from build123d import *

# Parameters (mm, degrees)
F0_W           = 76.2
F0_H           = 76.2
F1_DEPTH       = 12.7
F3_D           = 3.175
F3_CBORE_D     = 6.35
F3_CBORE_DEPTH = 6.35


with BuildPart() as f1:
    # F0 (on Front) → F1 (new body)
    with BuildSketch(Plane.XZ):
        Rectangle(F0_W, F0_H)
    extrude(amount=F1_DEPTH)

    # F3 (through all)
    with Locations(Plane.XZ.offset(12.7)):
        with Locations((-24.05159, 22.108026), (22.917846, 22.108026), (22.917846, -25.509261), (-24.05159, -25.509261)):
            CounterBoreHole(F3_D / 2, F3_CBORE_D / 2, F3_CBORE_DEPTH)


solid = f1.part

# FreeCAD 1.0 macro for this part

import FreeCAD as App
import Part
import Sketcher

V = App.Vector
Q = App.Units.Quantity

doc = App.newDocument("Part")
body = doc.addObject("PartDesign::Body", "Body")

# Sketch on XZ plane
sketch1 = doc.addObject("Sketcher::SketchObject", "Sketch")
body.addObject(sketch1)
sketch1.AttachmentSupport = (doc.XZ_Plane, [""])
sketch1.MapMode = "FlatFace"
sketch1.addGeometry([
    Part.LineSegment(V(-38, 38, 0), V(-38, -38, 0)),
    Part.LineSegment(V(-38, -38, 0), V(38, -38, 0)),
    Part.LineSegment(V(38, -38, 0), V(38, 38, 0)),
    Part.LineSegment(V(38, 38, 0), V(-38, 38, 0)),
], False)
sketch1.addConstraint([
    Sketcher.Constraint("Coincident", 0, 2, 1, 1),
    Sketcher.Constraint("Coincident", 1, 2, 2, 1),
    Sketcher.Constraint("Coincident", 2, 2, 3, 1),
    Sketcher.Constraint("Coincident", 3, 2, 0, 1),
    Sketcher.Constraint("Vertical", 0),
    Sketcher.Constraint("Horizontal", 1),
    Sketcher.Constraint("Vertical", 2),
    Sketcher.Constraint("Horizontal", 3),
    Sketcher.Constraint("Symmetric", 0, 2, 2, 2, -1, 1),
    Sketcher.Constraint("Equal", 3, 0),
    Sketcher.Constraint("DistanceX", 1, 1, 1, 2, Q("3 in")),
])
pad1 = doc.addObject("PartDesign::Pad", "Pad")
body.addObject(pad1)
pad1.Profile = sketch1
pad1.Length = Q("0.5 in")

# Sketch on XZ plane
sketch2 = doc.addObject("Sketcher::SketchObject", "Sketch001")
body.addObject(sketch2)
sketch2.AttachmentSupport = (doc.XZ_Plane, [""])
sketch2.MapMode = "FlatFace"
sketch2.AttachmentOffset = App.Placement(V(0, 0, 0.5 * 25.4), App.Rotation())
sketch2.addGeometry([
    Part.Circle(V(-24.1, 22.1, 0), V(0, 0, 1), 1.6),
    Part.Circle(V(22.9, 22.1, 0), V(0, 0, 1), 1.6),
    Part.Circle(V(22.9, -25.5, 0), V(0, 0, 1), 1.6),
    Part.Circle(V(-24.1, -25.5, 0), V(0, 0, 1), 1.6),
], False)
sketch2.addConstraint([
    Sketcher.Constraint("Equal", 0, 1),
    Sketcher.Constraint("Equal", 1, 2),
    Sketcher.Constraint("Equal", 2, 3),
    Sketcher.Constraint("Horizontal", 0, 3, 1, 3),
    Sketcher.Constraint("Horizontal", 2, 3, 3, 3),
    Sketcher.Constraint("Vertical", 1, 3, 2, 3),
    Sketcher.Constraint("Vertical", 0, 3, 3, 3),
    Sketcher.Constraint("Diameter", 0, Q("0.125 in")),
    Sketcher.Constraint("DistanceX", 0, 3, -1, 1, Q("24.05159 mm")),
    Sketcher.Constraint("DistanceY", 2, 3, -1, 1, Q("25.509261 mm")),
    Sketcher.Constraint("DistanceY", -1, 1, 0, 3, Q("22.108026 mm")),
    Sketcher.Constraint("DistanceX", -1, 1, 1, 3, Q("22.917846 mm")),
])
doc.recompute()
hole = doc.addObject("PartDesign::Hole", "Hole")
body.addObject(hole)
hole.Profile = sketch2
hole.ThreadType = "None"
hole.Diameter = Q("0.125 in")
hole.DepthType = "ThroughAll"
hole.HoleCutType = "Counterbore"
hole.HoleCutDiameter = Q("0.25 in")
hole.HoleCutDepth = Q("0.25 in")

doc.recompute()
